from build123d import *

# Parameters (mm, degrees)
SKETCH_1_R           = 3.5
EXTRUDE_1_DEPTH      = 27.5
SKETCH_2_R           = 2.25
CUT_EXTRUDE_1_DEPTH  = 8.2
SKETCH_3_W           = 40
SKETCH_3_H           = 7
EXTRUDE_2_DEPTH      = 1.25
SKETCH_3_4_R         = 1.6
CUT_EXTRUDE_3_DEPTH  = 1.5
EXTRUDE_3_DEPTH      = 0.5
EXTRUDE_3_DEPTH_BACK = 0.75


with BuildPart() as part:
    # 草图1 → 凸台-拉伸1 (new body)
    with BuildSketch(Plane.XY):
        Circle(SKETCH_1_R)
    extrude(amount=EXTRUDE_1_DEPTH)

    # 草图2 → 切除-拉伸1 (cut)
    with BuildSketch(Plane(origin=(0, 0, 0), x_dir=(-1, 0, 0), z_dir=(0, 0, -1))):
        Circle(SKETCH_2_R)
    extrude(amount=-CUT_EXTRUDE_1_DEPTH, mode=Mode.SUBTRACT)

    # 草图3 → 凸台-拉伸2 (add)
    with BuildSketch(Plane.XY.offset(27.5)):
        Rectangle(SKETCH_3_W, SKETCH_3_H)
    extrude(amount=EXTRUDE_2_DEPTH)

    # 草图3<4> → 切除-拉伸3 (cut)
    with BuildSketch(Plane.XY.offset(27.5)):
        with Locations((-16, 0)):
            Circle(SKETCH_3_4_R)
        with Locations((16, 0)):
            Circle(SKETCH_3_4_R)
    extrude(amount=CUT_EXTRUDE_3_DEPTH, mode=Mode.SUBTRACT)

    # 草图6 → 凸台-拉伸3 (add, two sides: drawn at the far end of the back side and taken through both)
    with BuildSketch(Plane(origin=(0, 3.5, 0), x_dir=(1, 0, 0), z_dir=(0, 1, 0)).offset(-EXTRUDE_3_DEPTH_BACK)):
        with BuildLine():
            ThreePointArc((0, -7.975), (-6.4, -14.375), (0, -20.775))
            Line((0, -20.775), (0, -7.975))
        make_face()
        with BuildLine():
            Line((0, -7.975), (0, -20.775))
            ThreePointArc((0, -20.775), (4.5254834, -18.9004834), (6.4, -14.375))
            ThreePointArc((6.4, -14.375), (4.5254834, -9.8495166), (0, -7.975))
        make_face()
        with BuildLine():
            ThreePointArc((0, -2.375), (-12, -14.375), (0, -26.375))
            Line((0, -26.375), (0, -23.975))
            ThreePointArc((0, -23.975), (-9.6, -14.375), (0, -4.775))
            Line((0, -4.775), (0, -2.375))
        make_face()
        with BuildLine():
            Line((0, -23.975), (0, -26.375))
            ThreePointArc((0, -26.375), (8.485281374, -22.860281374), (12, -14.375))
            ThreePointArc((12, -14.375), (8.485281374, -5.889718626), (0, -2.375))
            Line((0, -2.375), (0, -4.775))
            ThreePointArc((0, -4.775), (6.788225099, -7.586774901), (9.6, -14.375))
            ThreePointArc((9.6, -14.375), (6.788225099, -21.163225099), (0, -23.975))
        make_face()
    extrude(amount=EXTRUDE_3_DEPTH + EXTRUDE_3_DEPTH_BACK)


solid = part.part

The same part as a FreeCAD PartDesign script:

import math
import FreeCAD as App
import Part
import Sketcher


def add_polygon(sketch, points):
    """Adds a closed chain of lines whose ends are joined by coincident constraints."""
    first, n = sketch.GeometryCount, len(points)
    for a, b in zip(points, points[1:] + points[:1]):
        sketch.addGeometry(Part.LineSegment(App.Vector(*a, 0), App.Vector(*b, 0)), False)
    for i in range(n):
        sketch.addConstraint(Sketcher.Constraint("Coincident", first + i, 2, first + (i + 1) % n, 1))

doc = App.newDocument("Part")
params = doc.addObject("Spreadsheet::Sheet", "Params")
for row, (alias, value) in enumerate([
    ("sketch1_diameter", "7 mm"),
    ("pad1_length", "27.5 mm"),
    ("sketch2_diameter", "4.5 mm"),
    ("pocket1_length", "8.2 mm"),
    ("sketch3_width", "40 mm"),
    ("sketch3_height", "7 mm"),
    ("pad2_length", "1.25 mm"),
    ("sketch4_diameter", "3.2 mm"),
    ("pocket2_length", "1.5 mm"),
    ("sketch5_radius", "12 mm"),
    ("sketch5_radius2", "6.4 mm"),
    ("sketch5_radius3", "9.6 mm"),
    ("pad3_length", "0.5 mm"),
    ("pad3_length2", "0.75 mm"),
], start=1):
    params.set(f"A{row}", alias)
    params.set(f"B{row}", "=" + value)
    params.setAlias(f"B{row}", alias)

body = doc.addObject("PartDesign::Body", "Body")

sketch1 = body.newObject("Sketcher::SketchObject", "Sketch")
sketch1.AttachmentSupport = (doc.getObject("XY_Plane"), [""])
sketch1.MapMode = "FlatFace"
sketch1.addGeometry(Part.Circle(App.Vector(0, 0, 0), App.Vector(0, 0, 1), 3.5), False)
sketch1.addConstraint(Sketcher.Constraint("Coincident", 0, 3, -1, 1))
sketch1.addConstraint(Sketcher.Constraint("Diameter", 0, 7.0))
sketch1.setExpression("Constraints[1]", "Params.sketch1_diameter")
pad1 = body.newObject("PartDesign::Pad", "Pad")
pad1.Profile = sketch1
pad1.setExpression("Length", "Params.pad1_length")

sketch2 = body.newObject("Sketcher::SketchObject", "Sketch001")
sketch2.AttachmentSupport = (doc.getObject("XY_Plane"), [""])
sketch2.MapMode = "FlatFace"
sketch2.addGeometry(Part.Circle(App.Vector(0, 0, 0), App.Vector(0, 0, 1), 2.2), False)
sketch2.addConstraint(Sketcher.Constraint("Coincident", 0, 3, -1, 1))
sketch2.addConstraint(Sketcher.Constraint("Diameter", 0, 4.5))
sketch2.setExpression("Constraints[1]", "Params.sketch2_diameter")
pocket1 = body.newObject("PartDesign::Pocket", "Pocket")
pocket1.Profile = sketch2
pocket1.setExpression("Length", "Params.pocket1_length")
pocket1.Reversed = True

sketch3 = body.newObject("Sketcher::SketchObject", "Sketch002")
sketch3.AttachmentSupport = (doc.getObject("XY_Plane"), [""])
sketch3.MapMode = "FlatFace"
sketch3.AttachmentOffset = App.Placement(App.Vector(0, 0, 27.5), App.Rotation())
add_polygon(sketch3, [(-20, 4), (-20, -4), (20, -4), (20, 4)])
sketch3.addConstraint(Sketcher.Constraint("Vertical", 0))
sketch3.addConstraint(Sketcher.Constraint("Horizontal", 1))
sketch3.addConstraint(Sketcher.Constraint("Vertical", 2))
sketch3.addConstraint(Sketcher.Constraint("Horizontal", 3))
sketch3.addConstraint(Sketcher.Constraint("Symmetric", 0, 2, 2, 2, -1, 1))
sketch3.addConstraint(Sketcher.Constraint("DistanceX", 1, 1, 1, 2, 40.0))
sketch3.addConstraint(Sketcher.Constraint("DistanceY", 0, 2, 0, 1, 7.0))
sketch3.setExpression("Constraints[9]", "Params.sketch3_width")
sketch3.setExpression("Constraints[10]", "Params.sketch3_height")
pad2 = body.newObject("PartDesign::Pad", "Pad001")
pad2.Profile = sketch3
pad2.setExpression("Length", "Params.pad2_length")

sketch4 = body.newObject("Sketcher::SketchObject", "Sketch003")
sketch4.AttachmentSupport = (doc.getObject("XY_Plane"), [""])
sketch4.MapMode = "FlatFace"
sketch4.AttachmentOffset = App.Placement(App.Vector(0, 0, 27.5), App.Rotation())
sketch4.addGeometry(Part.Circle(App.Vector(-16, 0, 0), App.Vector(0, 0, 1), 1.6), False)
sketch4.addGeometry(Part.Circle(App.Vector(16, 0, 0), App.Vector(0, 0, 1), 1.6), False)
sketch4.addConstraint(Sketcher.Constraint("Equal", 0, 1))
sketch4.addConstraint(Sketcher.Constraint("Symmetric", 0, 3, 1, 3, -1, 1))
sketch4.addConstraint(Sketcher.Constraint("PointOnObject", 0, 3, -1))
sketch4.addConstraint(Sketcher.Constraint("Diameter", 0, 3.2))
sketch4.addConstraint(Sketcher.Constraint("DistanceX", 0, 3, -1, 1, 16.0))
sketch4.setExpression("Constraints[3]", "Params.sketch4_diameter")
pocket2 = body.newObject("PartDesign::Pocket", "Pocket001")
pocket2.Profile = sketch4
pocket2.setExpression("Length", "Params.pocket2_length")
pocket2.Reversed = True

sketch5 = body.newObject("Sketcher::SketchObject", "Sketch004")
sketch5.AttachmentSupport = (doc.getObject("XZ_Plane"), [""])
sketch5.MapMode = "FlatFace"
sketch5.AttachmentOffset = App.Placement(App.Vector(0, 0, -3.5), App.Rotation())
sketch5.addGeometry(Part.ArcOfCircle(Part.Circle(App.Vector(0, 14, 0), App.Vector(0, 0, 1), 6), math.radians(90), math.radians(270)), False)
sketch5.addGeometry(Part.ArcOfCircle(Part.Circle(App.Vector(0, 14, 0), App.Vector(0, 0, 1), 6), math.radians(0), math.radians(90)), False)
sketch5.addGeometry(Part.ArcOfCircle(Part.Circle(App.Vector(0, 14, 0), App.Vector(0, 0, 1), 6), math.radians(-90), math.radians(0)), False)
sketch5.addGeometry(Part.ArcOfCircle(Part.Circle(App.Vector(0, 14, 0), App.Vector(0, 0, 1), 12), math.radians(90), math.radians(270)), False)
sketch5.addGeometry(Part.ArcOfCircle(Part.Circle(App.Vector(0, 14, 0), App.Vector(0, 0, 1), 12), math.radians(0), math.radians(90)), False)
sketch5.addGeometry(Part.ArcOfCircle(Part.Circle(App.Vector(0, 14, 0), App.Vector(0, 0, 1), 12), math.radians(-90), math.radians(0)), False)
sketch5.addGeometry(Part.ArcOfCircle(Part.Circle(App.Vector(0, 14, 0), App.Vector(0, 0, 1), 10), math.radians(90), math.radians(270)), False)
sketch5.addGeometry(Part.ArcOfCircle(Part.Circle(App.Vector(0, 14, 0), App.Vector(0, 0, 1), 10), math.radians(-90), math.radians(0)), False)
sketch5.addGeometry(Part.ArcOfCircle(Part.Circle(App.Vector(0, 14, 0), App.Vector(0, 0, 1), 10), math.radians(0), math.radians(90)), False)
sketch5.addConstraint(Sketcher.Constraint("Tangent", 0, 1, 1, 2))
sketch5.addConstraint(Sketcher.Constraint("Tangent", 1, 1, 2, 2))
sketch5.addConstraint(Sketcher.Constraint("Tangent", 2, 1, 0, 2))
sketch5.addConstraint(Sketcher.Constraint("Tangent", 3, 1, 4, 2))
sketch5.addConstraint(Sketcher.Constraint("Tangent", 4, 1, 5, 2))
sketch5.addConstraint(Sketcher.Constraint("Tangent", 5, 1, 3, 2))
sketch5.addConstraint(Sketcher.Constraint("Tangent", 6, 2, 7, 1))
sketch5.addConstraint(Sketcher.Constraint("Tangent", 7, 2, 8, 1))
sketch5.addConstraint(Sketcher.Constraint("Tangent", 8, 2, 6, 1))
sketch5.addConstraint(Sketcher.Constraint("Coincident", 3, 3, 0, 3))
sketch5.addConstraint(Sketcher.Constraint("Coincident", 6, 3, 0, 3))
sketch5.addConstraint(Sketcher.Constraint("PointOnObject", 0, 3, -2))
sketch5.addConstraint(Sketcher.Constraint("PointOnObject", 0, 1, -2))
sketch5.addConstraint(Sketcher.Constraint("PointOnObject", 2, 1, -2))
sketch5.addConstraint(Sketcher.Constraint("PointOnObject", 3, 1, -2))
sketch5.addConstraint(Sketcher.Constraint("PointOnObject", 5, 1, -2))
sketch5.addConstraint(Sketcher.Constraint("PointOnObject", 6, 2, -2))
sketch5.addConstraint(Sketcher.Constraint("PointOnObject", 8, 2, -2))
sketch5.addConstraint(Sketcher.Constraint("Horizontal", 8, 3, 1, 1))
sketch5.addConstraint(Sketcher.Constraint("Horizontal", 1, 1, 4, 1))
sketch5.addConstraint(Sketcher.Constraint("Horizontal", 4, 1, 7, 2))
sketch5.addConstraint(Sketcher.Constraint("Radius", 3, 12.0))
sketch5.addConstraint(Sketcher.Constraint("Radius", 0, 6.4))
sketch5.addConstraint(Sketcher.Constraint("Radius", 6, 9.6))
sketch5.addConstraint(Sketcher.Constraint("DistanceY", -1, 1, 0, 3, 14.375))
sketch5.setExpression("Constraints[21]", "Params.sketch5_radius")
sketch5.setExpression("Constraints[22]", "Params.sketch5_radius2")
sketch5.setExpression("Constraints[23]", "Params.sketch5_radius3")
pad3 = body.newObject("PartDesign::Pad", "Pad002")
pad3.Profile = sketch5
pad3.Type = "TwoLengths"
pad3.setExpression("Length", "Params.pad3_length")
pad3.setExpression("Length2", "Params.pad3_length2")
pad3.Reversed = True

doc.recompute()
